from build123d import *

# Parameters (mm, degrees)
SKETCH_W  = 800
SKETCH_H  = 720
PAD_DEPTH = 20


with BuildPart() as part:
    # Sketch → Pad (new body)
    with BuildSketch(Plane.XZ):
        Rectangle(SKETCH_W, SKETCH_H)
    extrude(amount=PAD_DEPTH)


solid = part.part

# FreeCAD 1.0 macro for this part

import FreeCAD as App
import Part
import Sketcher
from FreeCAD import Vector
Q = App.Units.Quantity

doc = App.newDocument("Part")
body = doc.addObject("PartDesign::Body", "Body")

# Sketch on XZ plane
sketch1 = body.newObject("Sketcher::SketchObject", "Sketch")
sketch1.AttachmentSupport = (doc.getObject("XZ_Plane"), [""])
sketch1.MapMode = "FlatFace"
sketch1.addGeometry([
    Part.LineSegment(Vector(-400, 360, 0), Vector(-400, -360, 0)),
    Part.LineSegment(Vector(-400, -360, 0), Vector(400, -360, 0)),
    Part.LineSegment(Vector(400, -360, 0), Vector(400, 360, 0)),
    Part.LineSegment(Vector(400, 360, 0), Vector(-400, 360, 0)),
], False)
sketch1.addConstraint([
    Sketcher.Constraint("Coincident", 0, 2, 1, 1),
    Sketcher.Constraint("Coincident", 1, 2, 2, 1),
    Sketcher.Constraint("Coincident", 2, 2, 3, 1),
    Sketcher.Constraint("Coincident", 3, 2, 0, 1),
    Sketcher.Constraint("Vertical", 0),
    Sketcher.Constraint("Horizontal", 1),
    Sketcher.Constraint("Vertical", 2),
    Sketcher.Constraint("Horizontal", 3),
    Sketcher.Constraint("Symmetric", 0, 2, 2, 2, -1, 1),
    Sketcher.Constraint("DistanceX", 1, 1, 1, 2, Q("800 mm")),
    Sketcher.Constraint("DistanceY", 0, 2, 0, 1, Q("720 mm")),
])
pad1 = body.newObject("PartDesign::Pad", "Pad")
pad1.Profile = sketch1
pad1.Length = 20

doc.recompute()
